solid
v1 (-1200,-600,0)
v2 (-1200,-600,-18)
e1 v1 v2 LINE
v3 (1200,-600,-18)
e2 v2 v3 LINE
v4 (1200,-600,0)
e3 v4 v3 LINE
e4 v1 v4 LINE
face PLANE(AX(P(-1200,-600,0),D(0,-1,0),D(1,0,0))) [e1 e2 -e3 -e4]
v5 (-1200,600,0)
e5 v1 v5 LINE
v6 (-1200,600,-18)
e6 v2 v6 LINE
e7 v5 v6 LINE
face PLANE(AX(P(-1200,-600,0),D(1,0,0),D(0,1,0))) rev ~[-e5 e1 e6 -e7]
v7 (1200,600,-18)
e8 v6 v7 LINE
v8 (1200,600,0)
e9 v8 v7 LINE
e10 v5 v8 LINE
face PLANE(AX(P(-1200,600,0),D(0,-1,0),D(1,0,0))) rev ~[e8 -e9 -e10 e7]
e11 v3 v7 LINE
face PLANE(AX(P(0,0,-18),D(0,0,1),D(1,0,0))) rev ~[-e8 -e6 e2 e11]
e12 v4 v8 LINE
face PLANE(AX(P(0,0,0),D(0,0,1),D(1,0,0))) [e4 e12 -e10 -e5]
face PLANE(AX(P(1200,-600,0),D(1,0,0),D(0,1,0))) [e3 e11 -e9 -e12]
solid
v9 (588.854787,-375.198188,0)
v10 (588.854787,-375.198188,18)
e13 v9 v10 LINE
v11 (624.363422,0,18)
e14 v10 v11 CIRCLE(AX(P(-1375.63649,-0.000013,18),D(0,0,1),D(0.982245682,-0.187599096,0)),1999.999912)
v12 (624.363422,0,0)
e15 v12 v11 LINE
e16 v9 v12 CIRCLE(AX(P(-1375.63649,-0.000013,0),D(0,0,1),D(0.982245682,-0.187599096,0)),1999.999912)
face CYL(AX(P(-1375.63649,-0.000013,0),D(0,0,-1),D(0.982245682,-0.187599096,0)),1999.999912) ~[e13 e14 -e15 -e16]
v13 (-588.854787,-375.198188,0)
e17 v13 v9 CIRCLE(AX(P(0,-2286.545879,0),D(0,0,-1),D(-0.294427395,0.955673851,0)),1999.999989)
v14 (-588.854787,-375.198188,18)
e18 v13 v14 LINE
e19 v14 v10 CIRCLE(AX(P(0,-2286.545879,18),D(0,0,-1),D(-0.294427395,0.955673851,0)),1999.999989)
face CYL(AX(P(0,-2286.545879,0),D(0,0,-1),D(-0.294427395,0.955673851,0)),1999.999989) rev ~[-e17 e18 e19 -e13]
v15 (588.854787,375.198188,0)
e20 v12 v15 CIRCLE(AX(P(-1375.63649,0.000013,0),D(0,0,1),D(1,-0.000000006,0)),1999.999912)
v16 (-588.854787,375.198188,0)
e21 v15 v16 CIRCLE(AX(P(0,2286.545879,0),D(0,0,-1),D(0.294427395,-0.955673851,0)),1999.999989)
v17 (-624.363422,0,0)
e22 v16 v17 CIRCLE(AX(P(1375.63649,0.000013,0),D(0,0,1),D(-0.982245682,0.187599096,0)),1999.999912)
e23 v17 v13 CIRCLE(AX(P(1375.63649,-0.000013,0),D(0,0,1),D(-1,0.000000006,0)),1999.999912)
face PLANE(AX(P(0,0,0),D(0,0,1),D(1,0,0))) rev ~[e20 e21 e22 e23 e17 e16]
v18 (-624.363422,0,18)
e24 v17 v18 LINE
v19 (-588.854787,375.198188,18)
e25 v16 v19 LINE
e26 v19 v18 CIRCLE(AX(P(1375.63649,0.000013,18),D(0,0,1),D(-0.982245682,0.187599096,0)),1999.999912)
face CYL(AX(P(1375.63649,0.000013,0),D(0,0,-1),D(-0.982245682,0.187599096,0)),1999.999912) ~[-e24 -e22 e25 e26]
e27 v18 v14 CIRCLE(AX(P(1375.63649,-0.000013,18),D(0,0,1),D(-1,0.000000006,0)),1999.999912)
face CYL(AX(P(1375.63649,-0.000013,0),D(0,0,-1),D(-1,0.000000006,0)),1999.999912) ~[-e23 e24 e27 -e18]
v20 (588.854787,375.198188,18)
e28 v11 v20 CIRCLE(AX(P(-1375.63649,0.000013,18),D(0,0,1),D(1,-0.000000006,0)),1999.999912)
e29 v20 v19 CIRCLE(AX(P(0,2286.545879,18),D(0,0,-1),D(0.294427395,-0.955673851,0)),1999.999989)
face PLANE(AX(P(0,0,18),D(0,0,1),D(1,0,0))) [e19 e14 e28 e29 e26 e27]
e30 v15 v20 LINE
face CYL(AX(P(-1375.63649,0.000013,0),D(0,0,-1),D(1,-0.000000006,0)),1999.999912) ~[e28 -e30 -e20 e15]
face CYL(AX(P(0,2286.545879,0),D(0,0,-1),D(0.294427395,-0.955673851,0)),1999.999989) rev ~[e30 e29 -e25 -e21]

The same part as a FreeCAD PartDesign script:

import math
import FreeCAD as App
import Part
import Sketcher


def add_polygon(sketch, points):
    """Adds a closed chain of lines whose ends are joined by coincident constraints."""
    first, n = sketch.GeometryCount, len(points)
    for a, b in zip(points, points[1:] + points[:1]):
        sketch.addGeometry(Part.LineSegment(App.Vector(*a, 0), App.Vector(*b, 0)), False)
    for i in range(n):
        sketch.addConstraint(Sketcher.Constraint("Coincident", first + i, 2, first + (i + 1) % n, 1))

doc = App.newDocument("Part")
params = doc.addObject("Spreadsheet::Sheet", "Params")
for row, (alias, value) in enumerate([
    ("pad1_length", "18 mm"),
    ("sketch2_width", "2400 mm"),
    ("sketch2_height", "1200 mm"),
    ("pad2_length", "18 mm"),
], start=1):
    params.set(f"A{row}", alias)
    params.set(f"B{row}", "=" + value)
    params.setAlias(f"B{row}", alias)

body = doc.addObject("PartDesign::Body", "Body")

# Sketch on XY plane
sketch1 = body.newObject("Sketcher::SketchObject", "Sketch")
sketch1.AttachmentSupport = (doc.getObject("XY_Plane"), [""])
sketch1.MapMode = "FlatFace"
sketch1.addGeometry(Part.ArcOfCircle(Part.Circle(App.Vector(0, 2286.545879, 0), App.Vector(0, 0, 1), 1999.999989), math.radians(-107.123205), math.radians(-72.876795)), False)
sketch1.addGeometry(Part.ArcOfCircle(Part.Circle(App.Vector(1375.63649, 0.000013, 0), App.Vector(0, 0, 1), 1999.999912), math.radians(169.187297), math.radians(180)), False)
sketch1.addGeometry(Part.ArcOfCircle(Part.Circle(App.Vector(1375.63649, -0.000013, 0), App.Vector(0, 0, 1), 1999.999912), math.radians(180), math.radians(190.812703)), False)
sketch1.addGeometry(Part.ArcOfCircle(Part.Circle(App.Vector(0, -2286.545879, 0), App.Vector(0, 0, 1), 1999.999989), math.radians(72.876795), math.radians(107.123205)), False)
sketch1.addGeometry(Part.ArcOfCircle(Part.Circle(App.Vector(-1375.63649, -0.000013, 0), App.Vector(0, 0, 1), 1999.999912), math.radians(-10.812703), math.radians(0)), False)
sketch1.addGeometry(Part.ArcOfCircle(Part.Circle(App.Vector(-1375.63649, 0.000013, 0), App.Vector(0, 0, 1), 1999.999912), math.radians(0), math.radians(10.812703)), False)
sketch1.addConstraint(Sketcher.Constraint("Coincident", 0, 1, 1, 1))
sketch1.addConstraint(Sketcher.Constraint("Coincident", 1, 2, 2, 1))
sketch1.addConstraint(Sketcher.Constraint("Coincident", 2, 2, 3, 2))
sketch1.addConstraint(Sketcher.Constraint("Coincident", 3, 1, 4, 1))
sketch1.addConstraint(Sketcher.Constraint("Coincident", 4, 2, 5, 1))
sketch1.addConstraint(Sketcher.Constraint("Coincident", 5, 2, 0, 2))
sketch1.addConstraint(Sketcher.Constraint("Equal", 1, 2))
sketch1.addConstraint(Sketcher.Constraint("Equal", 0, 3))
sketch1.addConstraint(Sketcher.Constraint("Equal", 2, 4))
sketch1.addConstraint(Sketcher.Constraint("Equal", 4, 5))
sketch1.addConstraint(Sketcher.Constraint("Symmetric", 0, 3, 3, 3, -1, 1))
sketch1.addConstraint(Sketcher.Constraint("Symmetric", 1, 3, 4, 3, -1, 1))
sketch1.addConstraint(Sketcher.Constraint("PointOnObject", 0, 3, -2))
sketch1.addConstraint(Sketcher.Constraint("PointOnObject", 1, 2, -1))
sketch1.addConstraint(Sketcher.Constraint("PointOnObject", 4, 2, -1))
sketch1.addConstraint(Sketcher.Constraint("Horizontal", 2, 3, 4, 3))
sketch1.addConstraint(Sketcher.Constraint("Horizontal", 1, 3, 5, 3))
sketch1.addConstraint(Sketcher.Constraint("Radius", 0, 1999.999989))
sketch1.addConstraint(Sketcher.Constraint("Radius", 1, 1999.999912))
sketch1.addConstraint(Sketcher.Constraint("DistanceY", -1, 1, 0, 3, 2286.545879))
sketch1.addConstraint(Sketcher.Constraint("DistanceX", -1, 1, 1, 3, 1375.63649))
sketch1.addConstraint(Sketcher.Constraint("DistanceY", 1, 3, 0, 3, 2286.545866))
pad1 = body.newObject("PartDesign::Pad", "Pad")
pad1.Profile = sketch1
pad1.setExpression("Length", "Params.pad1_length")
body2 = doc.addObject("PartDesign::Body", "Body001")

# Sketch on XY plane
sketch2 = body2.newObject("Sketcher::SketchObject", "Sketch001")
sketch2.AttachmentSupport = (doc.getObject("XY_Plane001"), [""])
sketch2.MapMode = "FlatFace"
add_polygon(sketch2, [(-1200, 600), (-1200, -600), (1200, -600), (1200, 600)])  # lines 0-3
sketch2.addConstraint(Sketcher.Constraint("Vertical", 0))
sketch2.addConstraint(Sketcher.Constraint("Horizontal", 1))
sketch2.addConstraint(Sketcher.Constraint("Vertical", 2))
sketch2.addConstraint(Sketcher.Constraint("Horizontal", 3))
sketch2.addConstraint(Sketcher.Constraint("Symmetric", 0, 2, 2, 2, -1, 1))
sketch2.addConstraint(Sketcher.Constraint("DistanceX", 1, 1, 1, 2, 2400.0))
sketch2.addConstraint(Sketcher.Constraint("DistanceY", 0, 2, 0, 1, 1200.0))
sketch2.setExpression("Constraints[9]", "Params.sketch2_width")
sketch2.setExpression("Constraints[10]", "Params.sketch2_height")
pad2 = body2.newObject("PartDesign::Pad", "Pad001")
pad2.Profile = sketch2
pad2.setExpression("Length", "Params.pad2_length")
pad2.Reversed = True

doc.recompute()
